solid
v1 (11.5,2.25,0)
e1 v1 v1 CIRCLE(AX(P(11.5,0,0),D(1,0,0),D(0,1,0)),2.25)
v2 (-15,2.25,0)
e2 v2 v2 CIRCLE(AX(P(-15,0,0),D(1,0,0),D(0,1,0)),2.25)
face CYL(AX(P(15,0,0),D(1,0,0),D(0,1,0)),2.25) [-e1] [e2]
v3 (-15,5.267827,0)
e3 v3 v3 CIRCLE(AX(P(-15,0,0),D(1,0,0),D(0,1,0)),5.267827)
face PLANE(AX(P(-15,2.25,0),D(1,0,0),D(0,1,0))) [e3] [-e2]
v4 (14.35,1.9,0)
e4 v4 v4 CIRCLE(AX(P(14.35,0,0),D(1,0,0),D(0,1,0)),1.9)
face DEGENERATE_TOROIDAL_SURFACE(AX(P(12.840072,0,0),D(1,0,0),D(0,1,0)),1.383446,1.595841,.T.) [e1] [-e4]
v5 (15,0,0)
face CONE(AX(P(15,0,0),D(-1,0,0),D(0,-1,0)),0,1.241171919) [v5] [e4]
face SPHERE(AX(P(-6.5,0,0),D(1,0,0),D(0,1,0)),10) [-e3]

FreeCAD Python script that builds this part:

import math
import FreeCAD as App
import Part
import Sketcher

V = App.Vector

doc = App.newDocument("Part")
body = doc.addObject("PartDesign::Body", "Body")

sketch1 = doc.addObject("Sketcher::SketchObject", "Sketch")
body.addObject(sketch1)
sketch1.AttachmentSupport = (doc.XY_Plane, [""])
sketch1.MapMode = "FlatFace"
sketch1.addGeometry(Part.LineSegment(V(15, 0, 0), V(14.3, 1.9, 0)), False)
sketch1.addGeometry(Part.ArcOfCircle(Part.Circle(V(12.8, 1.4, 0), V(0, 0, 1), 1.6), math.radians(19), math.radians(147)), False)
sketch1.addGeometry(Part.LineSegment(V(11.5, 2.2, 0), V(-15, 2.2, 0)), False)
sketch1.addGeometry(Part.LineSegment(V(-15, 2.2, 0), V(-15, 5.3, 0)), False)
sketch1.addGeometry(Part.ArcOfCircle(Part.Circle(V(-6.5, 0, 0), V(0, 0, 1), 10), math.radians(148), math.radians(180)), False)
sketch1.addGeometry(Part.LineSegment(V(-16.5, 0, 0), V(15, 0, 0)), False)
sketch1.addConstraint(Sketcher.Constraint("Tangent", 0, 2, 1, 1))
sketch1.addConstraint(Sketcher.Constraint("Coincident", 1, 2, 2, 1))
sketch1.addConstraint(Sketcher.Constraint("Coincident", 2, 2, 3, 1))
sketch1.addConstraint(Sketcher.Constraint("Coincident", 3, 2, 4, 1))
sketch1.addConstraint(Sketcher.Constraint("Coincident", 4, 2, 5, 1))
sketch1.addConstraint(Sketcher.Constraint("Coincident", 5, 2, 0, 1))
sketch1.addConstraint(Sketcher.Constraint("Horizontal", 2))
sketch1.addConstraint(Sketcher.Constraint("Vertical", 3))
sketch1.addConstraint(Sketcher.Constraint("Horizontal", 5))
sketch1.addConstraint(Sketcher.Constraint("PointOnObject", 4, 3, -1))
sketch1.addConstraint(Sketcher.Constraint("PointOnObject", 4, 2, -1))
sketch1.addConstraint(Sketcher.Constraint("Radius", 4, 10.0))
sketch1.addConstraint(Sketcher.Constraint("DistanceX", 2, 2, 2, 1, 26.5))
sketch1.addConstraint(Sketcher.Constraint("DistanceX", 5, 1, 5, 2, 31.5))
sketch1.addConstraint(Sketcher.Constraint("DistanceX", 2, 2, -1, 1, 15.0))
sketch1.addConstraint(Sketcher.Constraint("DistanceX", -1, 1, 5, 2, 15.0))
sketch1.addConstraint(Sketcher.Constraint("DistanceY", -1, 1, 0, 2, 1.9))
sketch1.addConstraint(Sketcher.Constraint("DistanceX", -1, 1, 0, 2, 14.35))
sketch1.addConstraint(Sketcher.Constraint("DistanceY", -1, 1, 1, 2, 2.25))
revolution = doc.addObject("PartDesign::Revolution", "Revolution")
body.addObject(revolution)
revolution.Profile = sketch1
revolution.ReferenceAxis = (sketch1, ["H_Axis"])
revolution.Angle = 360

doc.recompute()
